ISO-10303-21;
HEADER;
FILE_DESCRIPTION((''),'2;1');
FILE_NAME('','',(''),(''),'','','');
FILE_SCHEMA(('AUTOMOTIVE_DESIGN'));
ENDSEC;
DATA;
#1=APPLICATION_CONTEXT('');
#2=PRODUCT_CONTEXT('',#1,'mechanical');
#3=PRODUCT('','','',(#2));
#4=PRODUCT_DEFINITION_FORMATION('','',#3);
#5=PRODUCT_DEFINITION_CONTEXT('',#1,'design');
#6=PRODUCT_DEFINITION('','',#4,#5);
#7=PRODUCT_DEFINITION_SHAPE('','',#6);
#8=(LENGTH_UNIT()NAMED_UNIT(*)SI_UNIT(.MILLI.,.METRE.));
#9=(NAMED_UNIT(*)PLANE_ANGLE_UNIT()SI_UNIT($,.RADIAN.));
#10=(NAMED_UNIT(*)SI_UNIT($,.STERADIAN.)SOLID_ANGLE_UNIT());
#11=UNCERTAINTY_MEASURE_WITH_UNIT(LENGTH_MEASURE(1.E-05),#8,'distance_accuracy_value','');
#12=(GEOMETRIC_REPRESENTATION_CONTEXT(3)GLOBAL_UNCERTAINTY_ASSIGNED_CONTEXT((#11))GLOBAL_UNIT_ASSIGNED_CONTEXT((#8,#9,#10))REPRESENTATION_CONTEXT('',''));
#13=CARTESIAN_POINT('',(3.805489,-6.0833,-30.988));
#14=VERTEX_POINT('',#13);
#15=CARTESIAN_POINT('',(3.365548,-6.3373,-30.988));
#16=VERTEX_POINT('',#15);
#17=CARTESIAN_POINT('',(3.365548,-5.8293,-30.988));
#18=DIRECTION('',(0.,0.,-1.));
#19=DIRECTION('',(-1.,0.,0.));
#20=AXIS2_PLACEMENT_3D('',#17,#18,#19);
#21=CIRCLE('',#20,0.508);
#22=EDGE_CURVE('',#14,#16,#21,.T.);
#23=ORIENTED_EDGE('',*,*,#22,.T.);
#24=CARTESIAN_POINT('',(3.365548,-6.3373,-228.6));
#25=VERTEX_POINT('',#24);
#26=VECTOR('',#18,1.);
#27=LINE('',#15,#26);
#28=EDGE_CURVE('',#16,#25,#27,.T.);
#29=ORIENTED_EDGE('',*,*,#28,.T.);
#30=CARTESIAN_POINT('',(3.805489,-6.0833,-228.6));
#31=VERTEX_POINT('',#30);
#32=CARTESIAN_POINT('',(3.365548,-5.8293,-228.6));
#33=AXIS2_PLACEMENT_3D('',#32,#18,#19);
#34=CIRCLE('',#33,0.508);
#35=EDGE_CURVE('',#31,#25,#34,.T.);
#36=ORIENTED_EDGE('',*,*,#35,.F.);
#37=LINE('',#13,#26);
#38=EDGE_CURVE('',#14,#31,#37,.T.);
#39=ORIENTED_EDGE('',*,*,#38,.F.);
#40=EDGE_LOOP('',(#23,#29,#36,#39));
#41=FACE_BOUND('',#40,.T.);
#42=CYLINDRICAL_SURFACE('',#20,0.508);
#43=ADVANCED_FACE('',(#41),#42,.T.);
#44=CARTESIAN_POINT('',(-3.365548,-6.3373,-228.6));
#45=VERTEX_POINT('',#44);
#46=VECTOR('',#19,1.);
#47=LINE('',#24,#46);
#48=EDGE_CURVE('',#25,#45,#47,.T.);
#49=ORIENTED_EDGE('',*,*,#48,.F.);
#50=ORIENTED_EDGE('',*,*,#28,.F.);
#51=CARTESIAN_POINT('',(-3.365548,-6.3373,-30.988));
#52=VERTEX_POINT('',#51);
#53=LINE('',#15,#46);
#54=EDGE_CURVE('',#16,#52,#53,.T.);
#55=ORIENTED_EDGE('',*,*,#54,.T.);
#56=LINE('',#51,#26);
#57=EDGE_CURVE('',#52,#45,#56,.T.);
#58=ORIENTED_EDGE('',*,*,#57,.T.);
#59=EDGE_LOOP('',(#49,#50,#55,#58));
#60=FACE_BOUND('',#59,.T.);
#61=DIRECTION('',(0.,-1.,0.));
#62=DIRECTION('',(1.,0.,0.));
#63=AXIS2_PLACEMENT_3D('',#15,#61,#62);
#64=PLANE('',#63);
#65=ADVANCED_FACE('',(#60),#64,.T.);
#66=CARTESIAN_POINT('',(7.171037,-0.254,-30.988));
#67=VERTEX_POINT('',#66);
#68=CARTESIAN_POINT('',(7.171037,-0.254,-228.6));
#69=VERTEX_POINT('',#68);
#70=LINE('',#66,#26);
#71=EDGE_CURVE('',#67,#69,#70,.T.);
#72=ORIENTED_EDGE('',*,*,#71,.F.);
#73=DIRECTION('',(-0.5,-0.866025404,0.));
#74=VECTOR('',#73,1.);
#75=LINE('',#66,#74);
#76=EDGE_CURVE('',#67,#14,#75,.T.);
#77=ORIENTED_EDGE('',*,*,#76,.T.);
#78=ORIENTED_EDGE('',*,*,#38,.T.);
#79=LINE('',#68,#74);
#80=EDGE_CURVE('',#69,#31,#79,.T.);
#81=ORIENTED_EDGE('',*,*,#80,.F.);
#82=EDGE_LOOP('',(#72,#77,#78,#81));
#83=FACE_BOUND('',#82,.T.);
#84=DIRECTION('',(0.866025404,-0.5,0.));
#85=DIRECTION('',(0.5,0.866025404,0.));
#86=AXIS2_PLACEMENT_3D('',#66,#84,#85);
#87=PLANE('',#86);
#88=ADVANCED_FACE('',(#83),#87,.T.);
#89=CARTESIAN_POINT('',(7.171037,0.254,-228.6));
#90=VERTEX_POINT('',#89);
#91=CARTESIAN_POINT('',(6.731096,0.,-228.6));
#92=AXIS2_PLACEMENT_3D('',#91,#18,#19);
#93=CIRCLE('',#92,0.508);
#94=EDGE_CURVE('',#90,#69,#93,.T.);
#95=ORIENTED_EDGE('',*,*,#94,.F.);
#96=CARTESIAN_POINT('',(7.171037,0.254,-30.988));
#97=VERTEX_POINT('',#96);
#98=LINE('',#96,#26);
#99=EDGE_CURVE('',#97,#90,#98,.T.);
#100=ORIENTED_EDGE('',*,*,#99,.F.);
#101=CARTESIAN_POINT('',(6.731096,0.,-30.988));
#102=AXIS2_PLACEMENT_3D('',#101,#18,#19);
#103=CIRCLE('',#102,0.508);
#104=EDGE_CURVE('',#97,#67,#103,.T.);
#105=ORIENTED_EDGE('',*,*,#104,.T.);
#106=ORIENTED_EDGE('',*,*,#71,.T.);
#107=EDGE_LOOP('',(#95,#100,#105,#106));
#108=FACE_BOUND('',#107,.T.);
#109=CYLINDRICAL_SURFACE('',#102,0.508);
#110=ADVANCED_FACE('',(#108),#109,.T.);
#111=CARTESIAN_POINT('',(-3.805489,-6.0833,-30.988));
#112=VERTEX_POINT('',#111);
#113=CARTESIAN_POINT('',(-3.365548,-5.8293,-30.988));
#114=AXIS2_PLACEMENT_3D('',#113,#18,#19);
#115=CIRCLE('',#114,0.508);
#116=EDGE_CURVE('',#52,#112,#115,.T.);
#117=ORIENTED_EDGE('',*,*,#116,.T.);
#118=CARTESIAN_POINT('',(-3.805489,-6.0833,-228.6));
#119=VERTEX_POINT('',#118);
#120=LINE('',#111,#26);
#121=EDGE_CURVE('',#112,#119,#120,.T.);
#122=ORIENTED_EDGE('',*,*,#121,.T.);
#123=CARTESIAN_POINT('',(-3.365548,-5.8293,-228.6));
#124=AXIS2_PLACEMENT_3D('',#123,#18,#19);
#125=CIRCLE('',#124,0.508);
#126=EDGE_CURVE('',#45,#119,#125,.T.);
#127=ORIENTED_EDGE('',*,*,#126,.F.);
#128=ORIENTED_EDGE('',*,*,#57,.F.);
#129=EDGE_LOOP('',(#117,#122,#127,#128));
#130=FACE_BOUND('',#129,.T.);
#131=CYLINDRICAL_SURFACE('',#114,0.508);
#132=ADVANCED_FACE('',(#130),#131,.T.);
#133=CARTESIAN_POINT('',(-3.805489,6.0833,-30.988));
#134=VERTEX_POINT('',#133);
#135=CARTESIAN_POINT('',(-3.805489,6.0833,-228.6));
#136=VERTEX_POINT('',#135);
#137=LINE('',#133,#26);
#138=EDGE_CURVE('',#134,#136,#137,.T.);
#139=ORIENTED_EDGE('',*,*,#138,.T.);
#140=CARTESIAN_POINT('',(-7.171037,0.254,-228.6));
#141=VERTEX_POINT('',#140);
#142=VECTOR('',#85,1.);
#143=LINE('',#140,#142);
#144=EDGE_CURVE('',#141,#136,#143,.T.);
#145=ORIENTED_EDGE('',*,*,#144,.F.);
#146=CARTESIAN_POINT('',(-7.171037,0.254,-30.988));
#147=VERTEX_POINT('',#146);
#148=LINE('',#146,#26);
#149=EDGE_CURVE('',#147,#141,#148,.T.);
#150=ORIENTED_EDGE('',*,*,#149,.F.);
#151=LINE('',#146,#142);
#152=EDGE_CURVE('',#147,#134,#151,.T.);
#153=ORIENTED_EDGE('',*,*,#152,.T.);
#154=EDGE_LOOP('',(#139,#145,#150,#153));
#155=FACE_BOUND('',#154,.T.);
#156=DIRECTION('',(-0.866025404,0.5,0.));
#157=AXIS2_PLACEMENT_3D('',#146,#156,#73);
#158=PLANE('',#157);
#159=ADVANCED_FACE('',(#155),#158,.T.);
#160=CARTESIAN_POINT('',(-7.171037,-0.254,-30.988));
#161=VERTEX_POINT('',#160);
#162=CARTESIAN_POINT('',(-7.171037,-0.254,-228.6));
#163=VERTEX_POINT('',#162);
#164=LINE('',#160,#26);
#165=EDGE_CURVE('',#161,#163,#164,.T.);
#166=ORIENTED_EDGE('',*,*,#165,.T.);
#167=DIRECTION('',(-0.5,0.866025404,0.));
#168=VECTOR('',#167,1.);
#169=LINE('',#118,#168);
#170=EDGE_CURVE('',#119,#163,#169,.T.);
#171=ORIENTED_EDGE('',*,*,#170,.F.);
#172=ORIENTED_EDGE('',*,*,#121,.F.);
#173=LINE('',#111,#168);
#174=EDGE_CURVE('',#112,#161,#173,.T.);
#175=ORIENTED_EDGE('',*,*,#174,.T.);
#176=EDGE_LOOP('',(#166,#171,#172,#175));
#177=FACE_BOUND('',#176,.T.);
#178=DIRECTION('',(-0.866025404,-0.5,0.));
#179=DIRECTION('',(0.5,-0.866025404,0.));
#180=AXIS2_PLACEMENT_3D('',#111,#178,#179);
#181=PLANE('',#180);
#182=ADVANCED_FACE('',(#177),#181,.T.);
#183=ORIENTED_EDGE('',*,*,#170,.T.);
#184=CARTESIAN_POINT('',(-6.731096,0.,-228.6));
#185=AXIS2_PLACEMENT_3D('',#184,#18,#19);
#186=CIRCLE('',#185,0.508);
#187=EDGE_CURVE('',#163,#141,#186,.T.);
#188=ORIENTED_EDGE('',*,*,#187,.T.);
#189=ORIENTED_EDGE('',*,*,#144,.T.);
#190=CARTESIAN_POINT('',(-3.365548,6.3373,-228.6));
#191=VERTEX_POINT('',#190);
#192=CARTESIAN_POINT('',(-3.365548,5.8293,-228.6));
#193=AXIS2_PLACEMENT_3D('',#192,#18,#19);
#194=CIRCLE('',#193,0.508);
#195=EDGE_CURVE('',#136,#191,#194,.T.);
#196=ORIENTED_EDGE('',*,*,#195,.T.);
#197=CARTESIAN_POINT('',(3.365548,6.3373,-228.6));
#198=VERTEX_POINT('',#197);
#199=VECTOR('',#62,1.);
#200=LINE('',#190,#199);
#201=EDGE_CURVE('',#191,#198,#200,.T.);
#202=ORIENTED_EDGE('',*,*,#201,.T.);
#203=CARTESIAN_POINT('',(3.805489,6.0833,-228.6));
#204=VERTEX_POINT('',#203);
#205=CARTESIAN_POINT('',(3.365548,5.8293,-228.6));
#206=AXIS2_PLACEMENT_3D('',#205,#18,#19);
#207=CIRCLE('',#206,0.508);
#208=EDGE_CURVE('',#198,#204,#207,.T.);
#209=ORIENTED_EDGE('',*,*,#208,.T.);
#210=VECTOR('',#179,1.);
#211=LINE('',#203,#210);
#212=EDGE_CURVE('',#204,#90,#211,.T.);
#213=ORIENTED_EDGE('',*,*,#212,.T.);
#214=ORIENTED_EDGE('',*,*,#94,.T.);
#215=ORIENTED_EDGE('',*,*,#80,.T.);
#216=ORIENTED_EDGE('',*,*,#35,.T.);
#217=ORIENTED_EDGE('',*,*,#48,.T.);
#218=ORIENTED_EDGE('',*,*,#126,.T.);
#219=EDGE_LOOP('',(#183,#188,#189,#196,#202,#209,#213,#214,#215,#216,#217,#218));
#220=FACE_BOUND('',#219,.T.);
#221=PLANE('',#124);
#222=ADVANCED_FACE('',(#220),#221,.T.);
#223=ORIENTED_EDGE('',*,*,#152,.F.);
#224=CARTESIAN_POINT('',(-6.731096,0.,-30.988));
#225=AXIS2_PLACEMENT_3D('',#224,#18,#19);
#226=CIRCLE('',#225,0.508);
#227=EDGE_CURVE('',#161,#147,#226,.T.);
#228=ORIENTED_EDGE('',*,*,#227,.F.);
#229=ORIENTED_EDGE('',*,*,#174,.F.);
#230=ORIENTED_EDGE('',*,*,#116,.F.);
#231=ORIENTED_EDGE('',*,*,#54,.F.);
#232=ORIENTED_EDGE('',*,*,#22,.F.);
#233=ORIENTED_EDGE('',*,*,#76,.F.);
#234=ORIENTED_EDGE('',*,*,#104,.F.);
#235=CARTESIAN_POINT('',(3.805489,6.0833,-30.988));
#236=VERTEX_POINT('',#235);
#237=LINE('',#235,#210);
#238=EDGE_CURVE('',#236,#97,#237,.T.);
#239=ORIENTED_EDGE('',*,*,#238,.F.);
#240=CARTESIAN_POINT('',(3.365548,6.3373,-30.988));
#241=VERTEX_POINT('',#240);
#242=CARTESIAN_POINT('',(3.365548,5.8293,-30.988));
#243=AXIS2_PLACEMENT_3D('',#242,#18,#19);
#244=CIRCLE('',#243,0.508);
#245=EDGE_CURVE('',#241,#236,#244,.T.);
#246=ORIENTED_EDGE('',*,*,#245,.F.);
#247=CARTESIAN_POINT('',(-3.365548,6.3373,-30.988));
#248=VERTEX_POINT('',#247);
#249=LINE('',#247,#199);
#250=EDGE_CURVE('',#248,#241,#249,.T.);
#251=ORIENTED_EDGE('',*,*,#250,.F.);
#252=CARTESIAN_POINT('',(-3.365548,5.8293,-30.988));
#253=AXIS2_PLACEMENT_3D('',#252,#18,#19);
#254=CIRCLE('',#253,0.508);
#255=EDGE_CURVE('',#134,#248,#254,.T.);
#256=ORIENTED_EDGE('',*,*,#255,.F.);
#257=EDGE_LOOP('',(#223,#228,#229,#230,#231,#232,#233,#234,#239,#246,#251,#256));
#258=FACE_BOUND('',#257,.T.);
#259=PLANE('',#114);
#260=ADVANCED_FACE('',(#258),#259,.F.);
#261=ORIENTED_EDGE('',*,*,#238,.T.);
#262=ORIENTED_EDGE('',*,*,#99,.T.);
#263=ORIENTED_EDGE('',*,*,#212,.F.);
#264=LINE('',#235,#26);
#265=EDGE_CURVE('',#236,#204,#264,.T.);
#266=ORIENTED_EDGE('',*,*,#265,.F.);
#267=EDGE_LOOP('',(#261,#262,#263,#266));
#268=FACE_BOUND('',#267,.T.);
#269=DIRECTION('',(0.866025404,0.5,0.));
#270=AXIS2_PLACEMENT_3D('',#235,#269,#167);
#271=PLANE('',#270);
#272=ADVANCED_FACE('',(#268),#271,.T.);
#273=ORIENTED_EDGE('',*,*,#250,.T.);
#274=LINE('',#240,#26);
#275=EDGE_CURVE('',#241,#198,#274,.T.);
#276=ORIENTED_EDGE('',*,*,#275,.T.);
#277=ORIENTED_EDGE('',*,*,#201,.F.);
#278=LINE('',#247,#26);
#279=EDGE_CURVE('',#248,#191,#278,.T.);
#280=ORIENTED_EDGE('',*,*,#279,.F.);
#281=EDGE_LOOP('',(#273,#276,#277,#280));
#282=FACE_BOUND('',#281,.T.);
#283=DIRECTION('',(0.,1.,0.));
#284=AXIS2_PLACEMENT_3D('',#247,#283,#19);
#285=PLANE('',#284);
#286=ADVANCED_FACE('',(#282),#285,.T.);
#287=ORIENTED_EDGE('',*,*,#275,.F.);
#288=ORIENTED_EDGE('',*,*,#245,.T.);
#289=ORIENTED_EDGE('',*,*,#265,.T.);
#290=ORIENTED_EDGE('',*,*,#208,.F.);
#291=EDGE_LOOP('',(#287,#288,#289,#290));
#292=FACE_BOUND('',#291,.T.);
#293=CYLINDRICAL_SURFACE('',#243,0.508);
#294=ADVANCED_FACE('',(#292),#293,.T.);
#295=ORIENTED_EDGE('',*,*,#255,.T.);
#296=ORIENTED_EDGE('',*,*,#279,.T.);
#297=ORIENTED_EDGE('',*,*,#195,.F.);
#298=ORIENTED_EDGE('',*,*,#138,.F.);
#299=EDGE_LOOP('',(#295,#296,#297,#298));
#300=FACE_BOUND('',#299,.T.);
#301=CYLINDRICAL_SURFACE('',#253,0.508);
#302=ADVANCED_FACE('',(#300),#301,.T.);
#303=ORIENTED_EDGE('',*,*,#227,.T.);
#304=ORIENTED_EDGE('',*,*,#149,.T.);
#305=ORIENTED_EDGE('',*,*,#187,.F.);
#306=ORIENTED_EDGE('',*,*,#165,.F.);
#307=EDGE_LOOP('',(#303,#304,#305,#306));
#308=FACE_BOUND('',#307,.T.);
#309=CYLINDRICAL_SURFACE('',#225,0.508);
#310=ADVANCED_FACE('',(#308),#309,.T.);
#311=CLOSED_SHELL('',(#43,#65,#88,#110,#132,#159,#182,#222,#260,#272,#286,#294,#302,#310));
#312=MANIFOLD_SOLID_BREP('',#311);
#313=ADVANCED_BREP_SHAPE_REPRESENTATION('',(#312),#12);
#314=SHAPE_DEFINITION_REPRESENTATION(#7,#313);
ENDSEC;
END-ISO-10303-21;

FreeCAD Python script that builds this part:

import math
import FreeCAD as App
import Part
import Sketcher
Q = App.Units.Quantity

doc = App.newDocument("Part")
body = doc.addObject("PartDesign::Body", "Body")

# Sketch on XY plane
sketch1 = body.newObject("Sketcher::SketchObject", "Sketch")
sketch1.AttachmentSupport = (doc.getObject("XY_Plane"), [""])
sketch1.MapMode = "FlatFace"
sketch1.AttachmentOffset = App.Placement(App.Vector(0, 0, -9 * 25.4), App.Rotation())
sketch1.addGeometry(Part.LineSegment(App.Vector(-3.805489, -6.0833, 0), App.Vector(-7.171037, -0.254, 0)), False)
sketch1.addGeometry(Part.ArcOfCircle(Part.Circle(App.Vector(-6.731096, 0, 0), App.Vector(0, 0, 1), 0.508), math.radians(150), math.radians(210)), False)
sketch1.addGeometry(Part.LineSegment(App.Vector(-7.171037, 0.254, 0), App.Vector(-3.805489, 6.0833, 0)), False)
sketch1.addGeometry(Part.ArcOfCircle(Part.Circle(App.Vector(-3.365548, 5.8293, 0), App.Vector(0, 0, 1), 0.508), math.radians(90), math.radians(150)), False)
sketch1.addGeometry(Part.LineSegment(App.Vector(-3.365548, 6.3373, 0), App.Vector(3.365548, 6.3373, 0)), False)
sketch1.addGeometry(Part.ArcOfCircle(Part.Circle(App.Vector(3.365548, 5.8293, 0), App.Vector(0, 0, 1), 0.508), math.radians(30), math.radians(90)), False)
sketch1.addGeometry(Part.LineSegment(App.Vector(3.805489, 6.0833, 0), App.Vector(7.171037, 0.254, 0)), False)
sketch1.addGeometry(Part.ArcOfCircle(Part.Circle(App.Vector(6.731096, 0, 0), App.Vector(0, 0, 1), 0.508), math.radians(-30), math.radians(30)), False)
sketch1.addGeometry(Part.LineSegment(App.Vector(7.171037, -0.254, 0), App.Vector(3.805489, -6.0833, 0)), False)
sketch1.addGeometry(Part.ArcOfCircle(Part.Circle(App.Vector(3.365548, -5.8293, 0), App.Vector(0, 0, 1), 0.508), math.radians(-90), math.radians(-30)), False)
sketch1.addGeometry(Part.LineSegment(App.Vector(3.365548, -6.3373, 0), App.Vector(-3.365548, -6.3373, 0)), False)
sketch1.addGeometry(Part.ArcOfCircle(Part.Circle(App.Vector(-3.365548, -5.8293, 0), App.Vector(0, 0, 1), 0.508), math.radians(-150), math.radians(-90)), False)
sketch1.addConstraint(Sketcher.Constraint("Tangent", 0, 2, 1, 2))
sketch1.addConstraint(Sketcher.Constraint("Tangent", 1, 1, 2, 1))
sketch1.addConstraint(Sketcher.Constraint("Tangent", 2, 2, 3, 2))
sketch1.addConstraint(Sketcher.Constraint("Tangent", 3, 1, 4, 1))
sketch1.addConstraint(Sketcher.Constraint("Tangent", 4, 2, 5, 2))
sketch1.addConstraint(Sketcher.Constraint("Tangent", 5, 1, 6, 1))
sketch1.addConstraint(Sketcher.Constraint("Tangent", 6, 2, 7, 2))
sketch1.addConstraint(Sketcher.Constraint("Tangent", 7, 1, 8, 1))
sketch1.addConstraint(Sketcher.Constraint("Tangent", 8, 2, 9, 2))
sketch1.addConstraint(Sketcher.Constraint("Tangent", 9, 1, 10, 1))
sketch1.addConstraint(Sketcher.Constraint("Tangent", 10, 2, 11, 2))
sketch1.addConstraint(Sketcher.Constraint("Tangent", 11, 1, 0, 1))
sketch1.addConstraint(Sketcher.Constraint("Horizontal", 4))
sketch1.addConstraint(Sketcher.Constraint("Horizontal", 10))
sketch1.addConstraint(Sketcher.Constraint("Equal", 1, 3))
sketch1.addConstraint(Sketcher.Constraint("Equal", 3, 5))
sketch1.addConstraint(Sketcher.Constraint("Equal", 5, 7))
sketch1.addConstraint(Sketcher.Constraint("Equal", 7, 9))
sketch1.addConstraint(Sketcher.Constraint("Equal", 9, 11))
sketch1.addConstraint(Sketcher.Constraint("Symmetric", 1, 3, 7, 3, -1, 1))
sketch1.addConstraint(Sketcher.Constraint("Symmetric", 3, 3, 9, 3, -1, 1))
sketch1.addConstraint(Sketcher.Constraint("Symmetric", 2, 2, 5, 1, -2))
sketch1.addConstraint(Sketcher.Constraint("Parallel", 0, 6))
sketch1.addConstraint(Sketcher.Constraint("Radius", 1, Q("0.02 in")))
sketch1.addConstraint(Sketcher.Constraint("Angle", 0, Q("120 deg")))
sketch1.addConstraint(Sketcher.Constraint("DistanceY", 9, 3, 5, 3, Q("0.459 in")))
sketch1.addConstraint(Sketcher.Constraint("DistanceX", 4, 1, 4, 2, Q("6.731096 mm")))
pad1 = body.newObject("PartDesign::Pad", "Pad")
pad1.Profile = sketch1
pad1.Length = Q("7.78 in")

doc.recompute()
